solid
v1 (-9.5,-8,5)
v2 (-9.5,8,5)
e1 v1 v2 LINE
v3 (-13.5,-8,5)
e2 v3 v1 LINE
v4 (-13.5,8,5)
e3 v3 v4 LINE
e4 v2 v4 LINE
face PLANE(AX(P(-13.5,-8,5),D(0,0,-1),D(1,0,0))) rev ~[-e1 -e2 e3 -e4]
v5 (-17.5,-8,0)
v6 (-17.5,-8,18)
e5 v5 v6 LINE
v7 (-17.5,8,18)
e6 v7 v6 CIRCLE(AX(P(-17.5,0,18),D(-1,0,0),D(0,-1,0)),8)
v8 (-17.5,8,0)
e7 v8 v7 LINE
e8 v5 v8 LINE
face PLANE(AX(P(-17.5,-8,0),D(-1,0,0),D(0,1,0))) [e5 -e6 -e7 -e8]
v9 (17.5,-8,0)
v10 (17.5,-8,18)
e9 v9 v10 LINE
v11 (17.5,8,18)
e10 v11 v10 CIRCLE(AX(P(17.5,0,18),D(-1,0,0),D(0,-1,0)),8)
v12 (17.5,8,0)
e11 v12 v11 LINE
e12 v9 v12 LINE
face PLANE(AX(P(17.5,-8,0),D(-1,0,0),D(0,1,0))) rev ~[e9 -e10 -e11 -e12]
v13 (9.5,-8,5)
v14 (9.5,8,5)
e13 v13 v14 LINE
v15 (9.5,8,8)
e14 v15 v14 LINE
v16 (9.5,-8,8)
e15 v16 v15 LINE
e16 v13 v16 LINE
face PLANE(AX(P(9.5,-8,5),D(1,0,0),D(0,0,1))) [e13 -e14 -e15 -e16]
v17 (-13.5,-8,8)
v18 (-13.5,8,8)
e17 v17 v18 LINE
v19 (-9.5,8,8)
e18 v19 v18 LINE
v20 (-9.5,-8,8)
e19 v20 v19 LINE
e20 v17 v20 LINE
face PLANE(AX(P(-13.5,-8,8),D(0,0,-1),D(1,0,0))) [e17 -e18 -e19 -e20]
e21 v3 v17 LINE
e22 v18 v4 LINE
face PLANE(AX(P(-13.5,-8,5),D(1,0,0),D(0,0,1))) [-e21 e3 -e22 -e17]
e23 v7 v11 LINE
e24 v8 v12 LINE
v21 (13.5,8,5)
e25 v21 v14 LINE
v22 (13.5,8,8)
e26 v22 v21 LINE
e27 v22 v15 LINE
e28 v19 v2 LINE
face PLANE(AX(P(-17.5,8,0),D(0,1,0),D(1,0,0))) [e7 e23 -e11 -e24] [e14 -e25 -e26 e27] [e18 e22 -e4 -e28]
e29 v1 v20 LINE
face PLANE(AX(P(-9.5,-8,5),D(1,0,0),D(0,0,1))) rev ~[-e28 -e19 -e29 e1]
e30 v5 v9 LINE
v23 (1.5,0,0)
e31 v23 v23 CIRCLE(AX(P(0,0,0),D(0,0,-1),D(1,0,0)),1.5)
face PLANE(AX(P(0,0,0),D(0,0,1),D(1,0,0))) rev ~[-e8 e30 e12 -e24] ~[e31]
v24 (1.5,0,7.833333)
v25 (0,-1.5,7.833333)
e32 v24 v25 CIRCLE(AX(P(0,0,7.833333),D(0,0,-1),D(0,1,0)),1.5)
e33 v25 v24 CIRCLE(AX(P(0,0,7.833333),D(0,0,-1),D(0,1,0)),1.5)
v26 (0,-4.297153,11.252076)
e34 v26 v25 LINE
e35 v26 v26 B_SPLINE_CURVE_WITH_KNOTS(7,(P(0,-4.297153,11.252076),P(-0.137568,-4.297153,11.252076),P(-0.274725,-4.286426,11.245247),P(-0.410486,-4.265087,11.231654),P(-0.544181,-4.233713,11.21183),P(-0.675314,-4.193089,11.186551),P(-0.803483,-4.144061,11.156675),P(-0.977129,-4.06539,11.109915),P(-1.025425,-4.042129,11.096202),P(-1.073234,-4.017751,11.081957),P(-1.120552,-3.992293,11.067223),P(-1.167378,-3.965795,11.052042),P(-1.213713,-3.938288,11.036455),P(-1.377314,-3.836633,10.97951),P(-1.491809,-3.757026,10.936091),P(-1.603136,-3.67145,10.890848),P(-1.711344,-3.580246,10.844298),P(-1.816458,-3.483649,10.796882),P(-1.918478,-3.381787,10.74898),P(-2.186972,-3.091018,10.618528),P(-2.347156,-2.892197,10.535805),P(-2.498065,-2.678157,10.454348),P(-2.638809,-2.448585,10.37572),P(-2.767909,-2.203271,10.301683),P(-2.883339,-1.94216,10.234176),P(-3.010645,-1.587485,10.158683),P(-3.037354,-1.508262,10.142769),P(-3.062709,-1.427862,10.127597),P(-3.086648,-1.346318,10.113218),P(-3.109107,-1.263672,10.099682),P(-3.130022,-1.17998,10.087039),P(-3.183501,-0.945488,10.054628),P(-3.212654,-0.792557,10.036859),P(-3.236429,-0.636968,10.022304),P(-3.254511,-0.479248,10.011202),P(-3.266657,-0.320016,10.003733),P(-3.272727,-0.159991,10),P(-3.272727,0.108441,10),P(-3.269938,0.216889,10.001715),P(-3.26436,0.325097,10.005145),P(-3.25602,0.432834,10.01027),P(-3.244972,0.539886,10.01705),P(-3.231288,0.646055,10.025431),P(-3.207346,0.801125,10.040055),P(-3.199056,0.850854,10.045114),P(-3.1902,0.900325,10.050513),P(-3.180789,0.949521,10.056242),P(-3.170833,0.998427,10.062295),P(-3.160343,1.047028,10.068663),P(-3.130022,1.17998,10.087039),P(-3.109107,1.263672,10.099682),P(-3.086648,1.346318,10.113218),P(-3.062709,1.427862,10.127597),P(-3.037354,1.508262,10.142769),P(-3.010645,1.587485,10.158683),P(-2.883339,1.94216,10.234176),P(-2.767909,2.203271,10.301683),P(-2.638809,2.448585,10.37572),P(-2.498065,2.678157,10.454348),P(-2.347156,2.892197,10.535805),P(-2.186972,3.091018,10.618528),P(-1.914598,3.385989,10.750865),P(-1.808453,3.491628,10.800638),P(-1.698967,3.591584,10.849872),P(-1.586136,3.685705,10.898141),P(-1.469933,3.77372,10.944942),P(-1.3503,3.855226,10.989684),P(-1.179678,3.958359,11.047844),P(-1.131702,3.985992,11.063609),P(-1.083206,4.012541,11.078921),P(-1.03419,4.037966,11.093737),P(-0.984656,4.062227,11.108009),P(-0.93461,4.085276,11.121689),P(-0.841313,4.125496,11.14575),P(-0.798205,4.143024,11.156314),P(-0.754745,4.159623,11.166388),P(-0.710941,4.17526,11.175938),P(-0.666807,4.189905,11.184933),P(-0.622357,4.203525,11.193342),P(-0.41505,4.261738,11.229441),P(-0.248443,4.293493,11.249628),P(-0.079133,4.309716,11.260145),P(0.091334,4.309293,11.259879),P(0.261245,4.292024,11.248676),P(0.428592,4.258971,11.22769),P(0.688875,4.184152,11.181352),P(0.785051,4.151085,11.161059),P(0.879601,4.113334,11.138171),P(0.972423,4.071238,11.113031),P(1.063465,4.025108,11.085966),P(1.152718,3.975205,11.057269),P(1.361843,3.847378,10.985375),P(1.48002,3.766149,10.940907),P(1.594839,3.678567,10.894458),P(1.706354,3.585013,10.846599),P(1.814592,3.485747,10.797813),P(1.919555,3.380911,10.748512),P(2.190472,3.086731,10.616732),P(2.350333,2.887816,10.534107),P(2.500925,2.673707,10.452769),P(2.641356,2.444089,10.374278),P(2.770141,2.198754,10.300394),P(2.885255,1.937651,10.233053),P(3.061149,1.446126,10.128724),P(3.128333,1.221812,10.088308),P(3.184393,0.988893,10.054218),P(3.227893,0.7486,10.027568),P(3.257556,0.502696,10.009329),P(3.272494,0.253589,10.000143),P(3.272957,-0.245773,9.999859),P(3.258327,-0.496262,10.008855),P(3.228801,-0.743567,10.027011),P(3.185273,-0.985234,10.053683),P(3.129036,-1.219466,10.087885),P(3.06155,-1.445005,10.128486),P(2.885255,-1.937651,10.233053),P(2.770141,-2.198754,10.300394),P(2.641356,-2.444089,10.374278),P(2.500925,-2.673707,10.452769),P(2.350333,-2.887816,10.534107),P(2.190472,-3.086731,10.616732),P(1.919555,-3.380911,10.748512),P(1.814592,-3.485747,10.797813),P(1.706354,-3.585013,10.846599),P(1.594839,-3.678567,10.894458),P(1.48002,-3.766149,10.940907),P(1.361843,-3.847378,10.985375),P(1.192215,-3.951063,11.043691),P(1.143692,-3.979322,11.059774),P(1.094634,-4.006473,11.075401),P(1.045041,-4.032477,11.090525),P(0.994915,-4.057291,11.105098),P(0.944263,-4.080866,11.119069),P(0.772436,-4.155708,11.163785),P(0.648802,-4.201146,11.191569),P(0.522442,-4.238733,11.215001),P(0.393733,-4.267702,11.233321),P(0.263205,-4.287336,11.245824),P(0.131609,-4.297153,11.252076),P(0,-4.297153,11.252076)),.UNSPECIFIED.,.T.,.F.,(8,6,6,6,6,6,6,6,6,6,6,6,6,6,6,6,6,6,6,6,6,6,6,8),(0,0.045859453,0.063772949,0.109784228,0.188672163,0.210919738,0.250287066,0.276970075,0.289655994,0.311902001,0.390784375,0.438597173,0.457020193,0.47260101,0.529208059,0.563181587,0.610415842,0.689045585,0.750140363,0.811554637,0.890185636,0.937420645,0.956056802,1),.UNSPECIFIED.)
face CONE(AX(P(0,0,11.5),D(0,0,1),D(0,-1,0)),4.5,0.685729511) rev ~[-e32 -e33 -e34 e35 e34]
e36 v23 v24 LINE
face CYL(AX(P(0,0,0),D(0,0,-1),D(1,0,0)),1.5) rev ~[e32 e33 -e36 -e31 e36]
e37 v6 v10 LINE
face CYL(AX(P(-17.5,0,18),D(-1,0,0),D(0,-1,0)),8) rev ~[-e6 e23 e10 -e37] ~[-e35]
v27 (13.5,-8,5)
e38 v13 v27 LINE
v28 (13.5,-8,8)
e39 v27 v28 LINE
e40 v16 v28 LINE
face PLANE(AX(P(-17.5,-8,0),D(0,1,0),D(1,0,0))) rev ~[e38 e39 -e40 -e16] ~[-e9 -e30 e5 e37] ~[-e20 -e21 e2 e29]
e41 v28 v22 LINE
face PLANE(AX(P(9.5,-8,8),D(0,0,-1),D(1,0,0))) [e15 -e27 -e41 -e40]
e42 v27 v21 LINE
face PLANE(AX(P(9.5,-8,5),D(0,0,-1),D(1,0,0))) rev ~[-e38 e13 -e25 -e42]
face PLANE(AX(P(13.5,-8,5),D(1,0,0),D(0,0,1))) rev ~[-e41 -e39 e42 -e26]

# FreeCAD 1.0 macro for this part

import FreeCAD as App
import Part
import Sketcher
from FreeCAD import Vector


def add_polygon(sketch, points):
    """Adds a closed chain of lines whose ends are joined by coincident constraints."""
    first, n = sketch.GeometryCount, len(points)
    for a, b in zip(points, points[1:] + points[:1]):
        sketch.addGeometry(Part.LineSegment(App.Vector(*a, 0), App.Vector(*b, 0)), False)
    for i in range(n):
        sketch.addConstraint(Sketcher.Constraint("Coincident", first + i, 2, first + (i + 1) % n, 1))

doc = App.newDocument("Part")
body = doc.addObject("PartDesign::Body", "Body")

# Sketch on XY plane
sketch1 = body.newObject("Sketcher::SketchObject", "Sketch")
sketch1.AttachmentSupport = (doc.getObject("XY_Plane"), [""])
sketch1.MapMode = "FlatFace"
add_polygon(sketch1, [(-18, 8), (-18, -8), (18, -8), (18, 8)])  # lines 0-3
sketch1.addConstraint([
    Sketcher.Constraint("Vertical", 0),
    Sketcher.Constraint("Horizontal", 1),
    Sketcher.Constraint("Vertical", 2),
    Sketcher.Constraint("Horizontal", 3),
    Sketcher.Constraint("Symmetric", 0, 2, 2, 2, -1, 1),
    Sketcher.Constraint("DistanceX", 1, 1, 1, 2, 35.0),
    Sketcher.Constraint("DistanceY", 0, 2, 0, 1, 16.0),
])
pad1 = body.newObject("PartDesign::Pad", "Pad")
pad1.Profile = sketch1
pad1.Length = 18

# Sketch on YZ plane
sketch2 = body.newObject("Sketcher::SketchObject", "Sketch001")
sketch2.AttachmentSupport = (doc.getObject("YZ_Plane"), [""])
sketch2.MapMode = "FlatFace"
sketch2.AttachmentOffset = App.Placement(Vector(0, 0, -17.5), App.Rotation())
sketch2.addGeometry(Part.Circle(Vector(0, 18, 0), Vector(0, 0, 1), 8), False)
sketch2.addConstraint([
    Sketcher.Constraint("PointOnObject", 0, 3, -2),
    Sketcher.Constraint("Diameter", 0, 16.0),
    Sketcher.Constraint("DistanceY", -1, 1, 0, 3, 18.0),
])
pocket1 = body.newObject("PartDesign::Pocket", "Pocket")
pocket1.Profile = sketch2
pocket1.Length = 40
pocket1.Reversed = True

# Sketch on XZ plane
sketch3 = body.newObject("Sketcher::SketchObject", "Sketch002")
sketch3.AttachmentSupport = (doc.getObject("XZ_Plane"), [""])
sketch3.MapMode = "FlatFace"
sketch3.AttachmentOffset = App.Placement(Vector(0, 0, 8), App.Rotation())
add_polygon(sketch3, [(-13.5, 8), (-13.5, 5), (-9.5, 5), (-9.5, 8)])  # lines 0-3
add_polygon(sketch3, [(9.5, 8), (9.5, 5), (13.5, 5), (13.5, 8)])  # lines 4-7
sketch3.addConstraint([
    Sketcher.Constraint("Vertical", 0),
    Sketcher.Constraint("Horizontal", 1),
    Sketcher.Constraint("Vertical", 2),
    Sketcher.Constraint("Horizontal", 3),
    Sketcher.Constraint("Vertical", 4),
    Sketcher.Constraint("Horizontal", 5),
    Sketcher.Constraint("Vertical", 6),
    Sketcher.Constraint("Horizontal", 7),
    Sketcher.Constraint("Symmetric", 1, 2, 4, 2, -2),
    Sketcher.Constraint("Symmetric", 3, 2, 6, 2, -2),
    Sketcher.Constraint("DistanceX", 1, 1, 1, 2, 4.0),
    Sketcher.Constraint("DistanceY", 0, 2, 0, 1, 3.0),
    Sketcher.Constraint("DistanceY", -1, 1, 0, 2, 5.0),
    Sketcher.Constraint("DistanceX", 1, 2, 4, 2, 19.0),
])
pocket2 = body.newObject("PartDesign::Pocket", "Pocket001")
pocket2.Profile = sketch3
pocket2.Length = 25

# Sketch on XY plane
sketch4 = body.newObject("Sketcher::SketchObject", "Sketch003")
sketch4.AttachmentSupport = (doc.getObject("XY_Plane"), [""])
sketch4.MapMode = "FlatFace"
sketch4.addGeometry(Part.Circle(Vector(0, 0, 0), Vector(0, 0, 1), 1.5), False)
sketch4.addConstraint([
    Sketcher.Constraint("Coincident", 0, 3, -1, 1),
    Sketcher.Constraint("Diameter", 0, 3.0),
])
pocket3 = body.newObject("PartDesign::Pocket", "Pocket002")
pocket3.Profile = sketch4
pocket3.Type = "ThroughAll"
pocket3.Reversed = True

# Sketch on YZ plane
sketch5 = body.newObject("Sketcher::SketchObject", "Sketch004")
sketch5.AttachmentSupport = (doc.getObject("YZ_Plane"), [""])
sketch5.MapMode = "FlatFace"
add_polygon(sketch5, [(-4.5, 11.5), (0, 6), (0, 11.5)])  # lines 0-2
sketch5.addConstraint([
    Sketcher.Constraint("Vertical", 1),
    Sketcher.Constraint("Horizontal", 2),
    Sketcher.Constraint("PointOnObject", 0, 2, -2),
    Sketcher.Constraint("DistanceX", 2, 2, 2, 1, 4.5),
    Sketcher.Constraint("DistanceY", 1, 1, 1, 2, 5.5),
    Sketcher.Constraint("DistanceY", -1, 1, 0, 2, 6.0),
])
groove = body.newObject("PartDesign::Groove", "Groove")
groove.Profile = sketch5
groove.ReferenceAxis = (sketch5, ["V_Axis"])
groove.Angle = 360

doc.recompute()
